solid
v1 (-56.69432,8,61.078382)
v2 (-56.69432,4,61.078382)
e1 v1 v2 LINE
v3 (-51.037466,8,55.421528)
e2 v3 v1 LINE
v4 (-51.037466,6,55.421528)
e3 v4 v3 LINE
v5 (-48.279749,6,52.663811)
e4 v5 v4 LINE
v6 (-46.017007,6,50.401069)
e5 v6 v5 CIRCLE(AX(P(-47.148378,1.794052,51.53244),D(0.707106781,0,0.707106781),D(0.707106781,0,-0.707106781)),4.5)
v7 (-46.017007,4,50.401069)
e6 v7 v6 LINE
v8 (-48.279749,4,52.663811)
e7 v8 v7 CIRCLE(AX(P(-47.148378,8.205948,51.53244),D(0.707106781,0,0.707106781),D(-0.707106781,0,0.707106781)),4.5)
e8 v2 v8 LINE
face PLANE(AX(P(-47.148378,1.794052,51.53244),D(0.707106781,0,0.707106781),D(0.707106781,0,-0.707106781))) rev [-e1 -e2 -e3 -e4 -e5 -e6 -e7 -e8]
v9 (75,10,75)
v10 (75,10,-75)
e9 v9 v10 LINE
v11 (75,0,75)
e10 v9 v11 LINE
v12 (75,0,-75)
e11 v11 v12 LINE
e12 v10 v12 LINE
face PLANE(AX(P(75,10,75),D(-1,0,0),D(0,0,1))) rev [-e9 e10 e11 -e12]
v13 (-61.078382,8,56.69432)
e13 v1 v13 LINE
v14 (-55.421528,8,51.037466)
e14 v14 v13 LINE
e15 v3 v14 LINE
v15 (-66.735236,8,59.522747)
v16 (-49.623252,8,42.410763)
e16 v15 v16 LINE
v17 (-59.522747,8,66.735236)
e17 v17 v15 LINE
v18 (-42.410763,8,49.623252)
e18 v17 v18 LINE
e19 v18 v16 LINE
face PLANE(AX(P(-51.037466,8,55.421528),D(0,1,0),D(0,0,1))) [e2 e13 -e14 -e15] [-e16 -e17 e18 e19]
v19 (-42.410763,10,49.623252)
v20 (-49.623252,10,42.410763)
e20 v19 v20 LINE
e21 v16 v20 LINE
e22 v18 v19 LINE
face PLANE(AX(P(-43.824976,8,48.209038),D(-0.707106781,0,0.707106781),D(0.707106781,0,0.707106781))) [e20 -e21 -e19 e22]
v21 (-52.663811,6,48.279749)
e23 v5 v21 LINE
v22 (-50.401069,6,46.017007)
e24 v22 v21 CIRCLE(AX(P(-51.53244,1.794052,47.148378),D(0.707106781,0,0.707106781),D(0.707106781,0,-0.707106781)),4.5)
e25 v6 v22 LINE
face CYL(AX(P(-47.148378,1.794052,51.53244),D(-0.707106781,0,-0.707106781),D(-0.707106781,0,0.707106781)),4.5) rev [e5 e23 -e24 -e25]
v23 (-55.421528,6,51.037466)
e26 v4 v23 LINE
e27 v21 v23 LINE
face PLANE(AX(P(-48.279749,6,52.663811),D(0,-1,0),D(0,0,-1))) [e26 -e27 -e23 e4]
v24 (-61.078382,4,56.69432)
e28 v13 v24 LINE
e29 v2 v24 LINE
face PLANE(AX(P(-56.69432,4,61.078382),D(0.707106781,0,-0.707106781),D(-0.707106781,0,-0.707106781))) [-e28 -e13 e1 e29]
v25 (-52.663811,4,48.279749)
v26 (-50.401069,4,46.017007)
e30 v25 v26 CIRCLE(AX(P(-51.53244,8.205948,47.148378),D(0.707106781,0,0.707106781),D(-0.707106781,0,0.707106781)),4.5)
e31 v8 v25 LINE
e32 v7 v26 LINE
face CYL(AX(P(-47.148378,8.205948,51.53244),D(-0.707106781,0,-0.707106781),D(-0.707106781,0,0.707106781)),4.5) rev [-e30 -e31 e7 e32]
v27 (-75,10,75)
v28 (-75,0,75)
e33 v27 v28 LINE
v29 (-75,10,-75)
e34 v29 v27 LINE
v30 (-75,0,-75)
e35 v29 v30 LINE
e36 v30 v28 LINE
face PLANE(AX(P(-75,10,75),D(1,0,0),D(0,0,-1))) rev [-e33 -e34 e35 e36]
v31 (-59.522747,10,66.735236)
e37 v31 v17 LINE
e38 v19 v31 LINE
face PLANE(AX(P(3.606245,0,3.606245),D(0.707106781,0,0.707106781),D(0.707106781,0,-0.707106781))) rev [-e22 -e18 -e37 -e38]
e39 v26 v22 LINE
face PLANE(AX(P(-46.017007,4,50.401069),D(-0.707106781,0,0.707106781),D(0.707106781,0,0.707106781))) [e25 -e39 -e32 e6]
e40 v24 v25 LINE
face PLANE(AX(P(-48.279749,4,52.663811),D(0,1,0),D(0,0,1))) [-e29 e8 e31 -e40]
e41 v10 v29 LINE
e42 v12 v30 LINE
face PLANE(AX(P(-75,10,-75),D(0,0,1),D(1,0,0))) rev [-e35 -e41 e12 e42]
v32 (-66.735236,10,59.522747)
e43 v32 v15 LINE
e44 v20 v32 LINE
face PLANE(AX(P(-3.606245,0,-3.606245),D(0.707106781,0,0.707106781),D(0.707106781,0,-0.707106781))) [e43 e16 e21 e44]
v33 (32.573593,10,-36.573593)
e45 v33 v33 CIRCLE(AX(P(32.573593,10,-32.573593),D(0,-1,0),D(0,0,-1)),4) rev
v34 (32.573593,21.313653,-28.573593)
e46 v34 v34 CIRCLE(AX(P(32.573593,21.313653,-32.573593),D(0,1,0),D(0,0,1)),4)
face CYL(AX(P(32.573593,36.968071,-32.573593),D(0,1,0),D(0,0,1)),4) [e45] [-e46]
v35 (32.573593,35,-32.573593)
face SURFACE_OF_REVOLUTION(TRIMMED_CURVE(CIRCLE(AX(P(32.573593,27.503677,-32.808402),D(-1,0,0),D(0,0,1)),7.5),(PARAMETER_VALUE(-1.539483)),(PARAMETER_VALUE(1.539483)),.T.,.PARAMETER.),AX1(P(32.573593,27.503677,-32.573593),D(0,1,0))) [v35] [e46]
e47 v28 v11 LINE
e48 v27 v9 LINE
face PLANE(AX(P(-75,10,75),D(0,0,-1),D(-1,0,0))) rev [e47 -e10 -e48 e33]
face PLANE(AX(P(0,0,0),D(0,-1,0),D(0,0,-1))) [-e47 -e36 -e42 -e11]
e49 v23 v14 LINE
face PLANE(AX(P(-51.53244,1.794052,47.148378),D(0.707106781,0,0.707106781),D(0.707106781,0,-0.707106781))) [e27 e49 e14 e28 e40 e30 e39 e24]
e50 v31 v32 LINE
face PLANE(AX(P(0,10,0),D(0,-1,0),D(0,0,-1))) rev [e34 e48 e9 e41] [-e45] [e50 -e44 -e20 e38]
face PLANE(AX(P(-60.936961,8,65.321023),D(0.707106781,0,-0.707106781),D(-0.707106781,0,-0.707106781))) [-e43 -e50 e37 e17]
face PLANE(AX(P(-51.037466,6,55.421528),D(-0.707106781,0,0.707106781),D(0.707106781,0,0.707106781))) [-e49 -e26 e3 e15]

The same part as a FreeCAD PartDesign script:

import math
import FreeCAD as App
import Part
import Sketcher
Q = App.Units.Quantity


def add_polygon(sketch, points):
    """Adds a closed chain of lines whose ends are joined by coincident constraints."""
    first, n = sketch.GeometryCount, len(points)
    for a, b in zip(points, points[1:] + points[:1]):
        sketch.addGeometry(Part.LineSegment(App.Vector(*a, 0), App.Vector(*b, 0)), False)
    for i in range(n):
        sketch.addConstraint(Sketcher.Constraint("Coincident", first + i, 2, first + (i + 1) % n, 1))

doc = App.newDocument("Part")
params = doc.addObject("Spreadsheet::Sheet", "Params")
for row, (alias, value) in enumerate([
    ("sketch1_width", "150 mm"),
    ("pad1_length", "10 mm"),
    ("sketch2_radius", "4.5 mm"),
    ("sketch2_width", "2 mm"),
    ("sketch2_height", "6 mm"),
    ("sketch2_height2", "3.9 mm"),
    ("sketch2_height3", "10.2 mm"),
    ("pocket1_length", "3.1 mm"),
    ("pocket1_length2", "3.1 mm"),
    ("sketch3_height", "2 mm"),
    ("sketch3_width", "24.2 mm"),
    ("pocket2_length", "8.2 mm"),
    ("pocket2_length2", "2 mm"),
    ("sketch4_radius", "7.5 mm"),
    ("sketch4_width", "25 mm"),
    ("sketch4_height", "4 mm"),
    ("revolution_angle", "360 deg"),
], start=1):
    params.set(f"A{row}", alias)
    params.set(f"B{row}", "=" + value)
    params.setAlias(f"B{row}", alias)

body = doc.addObject("PartDesign::Body", "Body")

# Sketch on XZ plane
sketch1 = body.newObject("Sketcher::SketchObject", "Sketch")
sketch1.AttachmentSupport = (doc.getObject("XZ_Plane"), [""])
sketch1.MapMode = "FlatFace"
add_polygon(sketch1, [(-75, -75), (-75, 75), (75, 75), (75, -75)])  # lines 0-3
sketch1.addConstraint(Sketcher.Constraint("Vertical", 0))
sketch1.addConstraint(Sketcher.Constraint("Horizontal", 1))
sketch1.addConstraint(Sketcher.Constraint("Vertical", 2))
sketch1.addConstraint(Sketcher.Constraint("Horizontal", 3))
sketch1.addConstraint(Sketcher.Constraint("Symmetric", 0, 2, 2, 2, -1, 1))
sketch1.addConstraint(Sketcher.Constraint("Equal", 3, 0))
sketch1.addConstraint(Sketcher.Constraint("DistanceX", 1, 1, 1, 2, Q("150 mm")))
sketch1.setExpression("Constraints[10]", "Params.sketch1_width")
pad1 = body.newObject("PartDesign::Pad", "Pad")
pad1.Profile = sketch1
pad1.setExpression("Length", "Params.pad1_length")
pad1.Reversed = True

# Sketch on an angled plane
sketch2 = body.newObject("Sketcher::SketchObject", "Sketch001")
sketch2.Placement = App.Placement(App.Vector(0, 0, 0), App.Rotation(App.Vector(0, -1, 0), App.Vector(0.707106781, 0, -0.707106781), App.Vector(0.707106781, 0, 0.707106781), "ZXY"))
sketch2.addGeometry(Part.LineSegment(App.Vector(-4, -68.2, 0), App.Vector(-6, -68.2, 0)), False)
sketch2.addGeometry(Part.ArcOfCircle(Part.Circle(App.Vector(-1.8, -69.8, 0), App.Vector(0, 0, 1), 4.5), math.radians(159), math.radians(201)), False)
sketch2.addGeometry(Part.LineSegment(App.Vector(-6, -71.4, 0), App.Vector(-6, -75.3, 0)), False)
sketch2.addGeometry(Part.LineSegment(App.Vector(-6, -75.3, 0), App.Vector(-8, -75.3, 0)), False)
sketch2.addGeometry(Part.LineSegment(App.Vector(-8, -75.3, 0), App.Vector(-8, -65.1, 0)), False)
sketch2.addGeometry(Part.LineSegment(App.Vector(-8, -65.1, 0), App.Vector(-10, -65.1, 0)), False)
sketch2.addGeometry(Part.LineSegment(App.Vector(-10, -65.1, 0), App.Vector(-10, -89.3, 0)), False)
sketch2.addGeometry(Part.LineSegment(App.Vector(-10, -89.3, 0), App.Vector(-8, -89.3, 0)), False)
sketch2.addGeometry(Part.LineSegment(App.Vector(-8, -89.3, 0), App.Vector(-8, -83.3, 0)), False)
sketch2.addGeometry(Part.LineSegment(App.Vector(-8, -83.3, 0), App.Vector(-4, -83.3, 0)), False)
sketch2.addGeometry(Part.LineSegment(App.Vector(-4, -83.3, 0), App.Vector(-4, -71.4, 0)), False)
sketch2.addGeometry(Part.ArcOfCircle(Part.Circle(App.Vector(-8.2, -69.8, 0), App.Vector(0, 0, 1), 4.5), math.radians(-21), math.radians(21)), False)
sketch2.addConstraint(Sketcher.Constraint("Coincident", 0, 2, 1, 1))
sketch2.addConstraint(Sketcher.Constraint("Coincident", 1, 2, 2, 1))
sketch2.addConstraint(Sketcher.Constraint("Coincident", 2, 2, 3, 1))
sketch2.addConstraint(Sketcher.Constraint("Coincident", 3, 2, 4, 1))
sketch2.addConstraint(Sketcher.Constraint("Coincident", 4, 2, 5, 1))
sketch2.addConstraint(Sketcher.Constraint("Coincident", 5, 2, 6, 1))
sketch2.addConstraint(Sketcher.Constraint("Coincident", 6, 2, 7, 1))
sketch2.addConstraint(Sketcher.Constraint("Coincident", 7, 2, 8, 1))
sketch2.addConstraint(Sketcher.Constraint("Coincident", 8, 2, 9, 1))
sketch2.addConstraint(Sketcher.Constraint("Coincident", 9, 2, 10, 1))
sketch2.addConstraint(Sketcher.Constraint("Coincident", 10, 2, 11, 1))
sketch2.addConstraint(Sketcher.Constraint("Coincident", 11, 2, 0, 1))
sketch2.addConstraint(Sketcher.Constraint("Horizontal", 0))
sketch2.addConstraint(Sketcher.Constraint("Vertical", 2))
sketch2.addConstraint(Sketcher.Constraint("Horizontal", 3))
sketch2.addConstraint(Sketcher.Constraint("Vertical", 4))
sketch2.addConstraint(Sketcher.Constraint("Horizontal", 5))
sketch2.addConstraint(Sketcher.Constraint("Vertical", 6))
sketch2.addConstraint(Sketcher.Constraint("Horizontal", 7))
sketch2.addConstraint(Sketcher.Constraint("Vertical", 8))
sketch2.addConstraint(Sketcher.Constraint("Horizontal", 9))
sketch2.addConstraint(Sketcher.Constraint("Vertical", 10))
sketch2.addConstraint(Sketcher.Constraint("Equal", 1, 11))
sketch2.addConstraint(Sketcher.Constraint("Horizontal", 1, 3, 11, 3))
sketch2.addConstraint(Sketcher.Constraint("Horizontal", 1, 2, 10, 2))
sketch2.addConstraint(Sketcher.Constraint("Vertical", 0, 2, 1, 2))
sketch2.addConstraint(Sketcher.Constraint("Vertical", 4, 2, 7, 2))
sketch2.addConstraint(Sketcher.Constraint("Equal", 0, 3))
sketch2.addConstraint(Sketcher.Constraint("Equal", 3, 5))
sketch2.addConstraint(Sketcher.Constraint("Radius", 1, Q("4.5 mm")))
sketch2.addConstraint(Sketcher.Constraint("DistanceX", 0, 2, 0, 1, Q("2 mm")))
sketch2.addConstraint(Sketcher.Constraint("DistanceY", 8, 1, 8, 2, Q("6 mm")))
sketch2.addConstraint(Sketcher.Constraint("DistanceY", 2, 2, 2, 1, Q("3.9 mm")))
sketch2.addConstraint(Sketcher.Constraint("DistanceY", 4, 1, 4, 2, Q("10.2 mm")))
sketch2.addConstraint(Sketcher.Constraint("DistanceY", 6, 2, 6, 1, Q("24.2 mm")))
sketch2.addConstraint(Sketcher.Constraint("DistanceX", 0, 2, -1, 1, Q("6 mm")))
sketch2.addConstraint(Sketcher.Constraint("DistanceY", 11, 3, 0, 2, Q("1.6 mm")))
sketch2.addConstraint(Sketcher.Constraint("DistanceY", 1, 3, -1, 1, Q("69.777876 mm")))
sketch2.setExpression("Constraints[29]", "Params.sketch2_radius")
sketch2.setExpression("Constraints[30]", "Params.sketch2_width")
sketch2.setExpression("Constraints[31]", "Params.sketch2_height")
sketch2.setExpression("Constraints[32]", "Params.sketch2_height2")
sketch2.setExpression("Constraints[33]", "Params.sketch2_height3")
pocket1 = body.newObject("PartDesign::Pocket", "Pocket")
pocket1.Profile = sketch2
pocket1.Type = "TwoLengths"
pocket1.setExpression("Length", "Params.pocket1_length")
pocket1.setExpression("Length2", "Params.pocket1_length2")
pocket1.Reversed = True

# Sketch on an angled plane
sketch3 = body.newObject("Sketcher::SketchObject", "Sketch002")
sketch3.Placement = App.Placement(App.Vector(-2.192031, 0, -2.192031), App.Rotation(App.Vector(0.707106781, 0, -0.707106781), App.Vector(0, 0.999999999, 0), App.Vector(0.707106781, 0, 0.707106781), "ZXY"))
add_polygon(sketch3, [(-89.3, 10), (-89.3, 8), (-65.1, 8), (-65.1, 10)])  # lines 0-3
sketch3.addConstraint(Sketcher.Constraint("Vertical", 0))
sketch3.addConstraint(Sketcher.Constraint("Horizontal", 1))
sketch3.addConstraint(Sketcher.Constraint("Vertical", 2))
sketch3.addConstraint(Sketcher.Constraint("Horizontal", 3))
sketch3.addConstraint(Sketcher.Constraint("DistanceY", 0, 2, 0, 1, Q("2 mm")))
sketch3.addConstraint(Sketcher.Constraint("DistanceX", 1, 1, 1, 2, Q("24.2 mm")))
sketch3.addConstraint(Sketcher.Constraint("DistanceY", -1, 1, 0, 2, Q("8 mm")))
sketch3.addConstraint(Sketcher.Constraint("DistanceX", 0, 2, -1, 1, Q("89.277876 mm")))
sketch3.setExpression("Constraints[8]", "Params.sketch3_height")
sketch3.setExpression("Constraints[9]", "Params.sketch3_width")
pocket2 = body.newObject("PartDesign::Pocket", "Pocket001")
pocket2.Profile = sketch3
pocket2.Type = "TwoLengths"
pocket2.setExpression("Length", "Params.pocket2_length")
pocket2.setExpression("Length2", "Params.pocket2_length2")
pocket2.Reversed = True

# Sketch on an angled plane
sketch4 = body.newObject("Sketcher::SketchObject", "Sketch003")
sketch4.Placement = App.Placement(App.Vector(0, 0, 0), App.Rotation(App.Vector(0, -1, 0), App.Vector(0.707106781, 0, -0.707106781), App.Vector(0.707106781, 0, 0.707106781), "ZXY"))
sketch4.addGeometry(Part.LineSegment(App.Vector(-35, 46.1, 0), App.Vector(-10, 46.1, 0)), False)
sketch4.addGeometry(Part.LineSegment(App.Vector(-10, 46.1, 0), App.Vector(-10, 50.1, 0)), False)
sketch4.addGeometry(Part.LineSegment(App.Vector(-10, 50.1, 0), App.Vector(-21.3, 50.1, 0)), False)
sketch4.addGeometry(Part.ArcOfCircle(Part.Circle(App.Vector(-27.5, 45.8, 0), App.Vector(0, 0, 1), 7.5), math.radians(34), math.radians(178)), False)
sketch4.addGeometry(Part.LineSegment(App.Vector(-35, 46.1, 0), App.Vector(-10, 46.1, 0)), True)  # axis
sketch4.addConstraint(Sketcher.Constraint("Coincident", 0, 2, 1, 1))
sketch4.addConstraint(Sketcher.Constraint("Coincident", 1, 2, 2, 1))
sketch4.addConstraint(Sketcher.Constraint("Coincident", 2, 2, 3, 1))
sketch4.addConstraint(Sketcher.Constraint("Coincident", 3, 2, 0, 1))
sketch4.addConstraint(Sketcher.Constraint("Horizontal", 0))
sketch4.addConstraint(Sketcher.Constraint("Vertical", 1))
sketch4.addConstraint(Sketcher.Constraint("Horizontal", 2))
sketch4.addConstraint(Sketcher.Constraint("Horizontal", 4))
sketch4.addConstraint(Sketcher.Constraint("Coincident", 4, 1, 3, 2))
sketch4.addConstraint(Sketcher.Constraint("Vertical", 1, 2, 4, 2))
sketch4.addConstraint(Sketcher.Constraint("Radius", 3, Q("7.5 mm")))
sketch4.addConstraint(Sketcher.Constraint("DistanceX", 0, 1, 0, 2, Q("25 mm")))
sketch4.addConstraint(Sketcher.Constraint("DistanceY", 1, 1, 1, 2, Q("4 mm")))
sketch4.addConstraint(Sketcher.Constraint("DistanceX", 0, 2, -1, 1, Q("10 mm")))
sketch4.addConstraint(Sketcher.Constraint("DistanceX", 2, 2, 2, 1, Q("11.313653 mm")))
sketch4.addConstraint(Sketcher.Constraint("DistanceY", -1, 1, 3, 3, Q("45.831209 mm")))
sketch4.setExpression("Constraints[10]", "Params.sketch4_radius")
sketch4.setExpression("Constraints[11]", "Params.sketch4_width")
sketch4.setExpression("Constraints[12]", "Params.sketch4_height")
revolution = body.newObject("PartDesign::Revolution", "Revolution")
revolution.Profile = sketch4
revolution.ReferenceAxis = (sketch4, ["Axis0"])
revolution.setExpression("Angle", "Params.revolution_angle")

doc.recompute()
